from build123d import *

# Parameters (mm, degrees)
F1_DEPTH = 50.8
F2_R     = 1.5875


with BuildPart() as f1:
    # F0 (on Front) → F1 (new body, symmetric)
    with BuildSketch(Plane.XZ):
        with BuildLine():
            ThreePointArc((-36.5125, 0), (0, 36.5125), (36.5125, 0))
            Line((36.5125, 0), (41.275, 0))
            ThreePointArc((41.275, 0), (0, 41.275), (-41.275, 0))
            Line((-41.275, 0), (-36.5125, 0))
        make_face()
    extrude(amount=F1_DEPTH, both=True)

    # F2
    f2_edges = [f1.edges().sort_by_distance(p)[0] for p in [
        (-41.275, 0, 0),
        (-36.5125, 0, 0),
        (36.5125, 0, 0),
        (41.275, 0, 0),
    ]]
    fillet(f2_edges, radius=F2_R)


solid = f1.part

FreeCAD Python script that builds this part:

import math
import FreeCAD as App
import Part
import Sketcher
from FreeCAD import Vector
Q = App.Units.Quantity


def edges_at(feature, points):
    """Names of the edges that pass closest to the given points."""
    edges = feature.Shape.Edges
    near = lambda p: min(range(len(edges)), key=lambda i: edges[i].distToShape(Part.Vertex(*p))[0])
    return sorted({f"Edge{near(p) + 1}" for p in points})

doc = App.newDocument("Part")
params = doc.addObject("Spreadsheet::Sheet", "Params")
for row, (alias, value) in enumerate([
    ("sketch1_radius", "1.4375 in"),
    ("sketch1_radius2", "1.625 in"),
    ("pad1_length", "4 in"),
    ("fillet_radius", "0.0625 in"),
], start=1):
    params.set(f"A{row}", alias)
    params.set(f"B{row}", "=" + value)
    params.setAlias(f"B{row}", alias)

body = doc.addObject("PartDesign::Body", "Body")

# Sketch on XZ plane
sketch1 = body.newObject("Sketcher::SketchObject", "Sketch")
sketch1.AttachmentSupport = (doc.getObject("XZ_Plane"), [""])
sketch1.MapMode = "FlatFace"
sketch1.addGeometry(Part.ArcOfCircle(Part.Circle(Vector(0, 0, 0), Vector(0, 0, 1), 36.5), math.radians(0), math.radians(180)), False)
sketch1.addGeometry(Part.LineSegment(Vector(36.5, 0, 0), Vector(41.3, 0, 0)), False)
sketch1.addGeometry(Part.ArcOfCircle(Part.Circle(Vector(0, 0, 0), Vector(0, 0, 1), 41.3), math.radians(0), math.radians(180)), False)
sketch1.addGeometry(Part.LineSegment(Vector(-41.3, 0, 0), Vector(-36.5, 0, 0)), False)
sketch1.addConstraint(Sketcher.Constraint("Coincident", 0, 1, 1, 1))
sketch1.addConstraint(Sketcher.Constraint("Coincident", 1, 2, 2, 1))
sketch1.addConstraint(Sketcher.Constraint("Coincident", 2, 2, 3, 1))
sketch1.addConstraint(Sketcher.Constraint("Coincident", 3, 2, 0, 2))
sketch1.addConstraint(Sketcher.Constraint("Horizontal", 1))
sketch1.addConstraint(Sketcher.Constraint("Horizontal", 3))
sketch1.addConstraint(Sketcher.Constraint("Coincident", 0, 3, -1, 1))
sketch1.addConstraint(Sketcher.Constraint("Coincident", 2, 3, -1, 1))
sketch1.addConstraint(Sketcher.Constraint("PointOnObject", 0, 1, -1))
sketch1.addConstraint(Sketcher.Constraint("PointOnObject", 2, 2, -1))
sketch1.addConstraint(Sketcher.Constraint("Radius", 0, Q("1.4375 in")))
sketch1.addConstraint(Sketcher.Constraint("Radius", 2, Q("1.625 in")))
sketch1.setExpression("Constraints[10]", "Params.sketch1_radius")
sketch1.setExpression("Constraints[11]", "Params.sketch1_radius2")
pad1 = body.newObject("PartDesign::Pad", "Pad")
pad1.Profile = sketch1
pad1.setExpression("Length", "Params.pad1_length")
pad1.Midplane = True
doc.recompute()

fillet = body.newObject("PartDesign::Fillet", "Fillet")
fillet.Base = (pad1, edges_at(pad1, [
    (-41.275, 0, 0),
    (-36.513, 0, 0),
    (36.513, 0, 0),
    (41.275, 0, 0),
]))
fillet.setExpression("Radius", "Params.fillet_radius")

doc.recompute()
